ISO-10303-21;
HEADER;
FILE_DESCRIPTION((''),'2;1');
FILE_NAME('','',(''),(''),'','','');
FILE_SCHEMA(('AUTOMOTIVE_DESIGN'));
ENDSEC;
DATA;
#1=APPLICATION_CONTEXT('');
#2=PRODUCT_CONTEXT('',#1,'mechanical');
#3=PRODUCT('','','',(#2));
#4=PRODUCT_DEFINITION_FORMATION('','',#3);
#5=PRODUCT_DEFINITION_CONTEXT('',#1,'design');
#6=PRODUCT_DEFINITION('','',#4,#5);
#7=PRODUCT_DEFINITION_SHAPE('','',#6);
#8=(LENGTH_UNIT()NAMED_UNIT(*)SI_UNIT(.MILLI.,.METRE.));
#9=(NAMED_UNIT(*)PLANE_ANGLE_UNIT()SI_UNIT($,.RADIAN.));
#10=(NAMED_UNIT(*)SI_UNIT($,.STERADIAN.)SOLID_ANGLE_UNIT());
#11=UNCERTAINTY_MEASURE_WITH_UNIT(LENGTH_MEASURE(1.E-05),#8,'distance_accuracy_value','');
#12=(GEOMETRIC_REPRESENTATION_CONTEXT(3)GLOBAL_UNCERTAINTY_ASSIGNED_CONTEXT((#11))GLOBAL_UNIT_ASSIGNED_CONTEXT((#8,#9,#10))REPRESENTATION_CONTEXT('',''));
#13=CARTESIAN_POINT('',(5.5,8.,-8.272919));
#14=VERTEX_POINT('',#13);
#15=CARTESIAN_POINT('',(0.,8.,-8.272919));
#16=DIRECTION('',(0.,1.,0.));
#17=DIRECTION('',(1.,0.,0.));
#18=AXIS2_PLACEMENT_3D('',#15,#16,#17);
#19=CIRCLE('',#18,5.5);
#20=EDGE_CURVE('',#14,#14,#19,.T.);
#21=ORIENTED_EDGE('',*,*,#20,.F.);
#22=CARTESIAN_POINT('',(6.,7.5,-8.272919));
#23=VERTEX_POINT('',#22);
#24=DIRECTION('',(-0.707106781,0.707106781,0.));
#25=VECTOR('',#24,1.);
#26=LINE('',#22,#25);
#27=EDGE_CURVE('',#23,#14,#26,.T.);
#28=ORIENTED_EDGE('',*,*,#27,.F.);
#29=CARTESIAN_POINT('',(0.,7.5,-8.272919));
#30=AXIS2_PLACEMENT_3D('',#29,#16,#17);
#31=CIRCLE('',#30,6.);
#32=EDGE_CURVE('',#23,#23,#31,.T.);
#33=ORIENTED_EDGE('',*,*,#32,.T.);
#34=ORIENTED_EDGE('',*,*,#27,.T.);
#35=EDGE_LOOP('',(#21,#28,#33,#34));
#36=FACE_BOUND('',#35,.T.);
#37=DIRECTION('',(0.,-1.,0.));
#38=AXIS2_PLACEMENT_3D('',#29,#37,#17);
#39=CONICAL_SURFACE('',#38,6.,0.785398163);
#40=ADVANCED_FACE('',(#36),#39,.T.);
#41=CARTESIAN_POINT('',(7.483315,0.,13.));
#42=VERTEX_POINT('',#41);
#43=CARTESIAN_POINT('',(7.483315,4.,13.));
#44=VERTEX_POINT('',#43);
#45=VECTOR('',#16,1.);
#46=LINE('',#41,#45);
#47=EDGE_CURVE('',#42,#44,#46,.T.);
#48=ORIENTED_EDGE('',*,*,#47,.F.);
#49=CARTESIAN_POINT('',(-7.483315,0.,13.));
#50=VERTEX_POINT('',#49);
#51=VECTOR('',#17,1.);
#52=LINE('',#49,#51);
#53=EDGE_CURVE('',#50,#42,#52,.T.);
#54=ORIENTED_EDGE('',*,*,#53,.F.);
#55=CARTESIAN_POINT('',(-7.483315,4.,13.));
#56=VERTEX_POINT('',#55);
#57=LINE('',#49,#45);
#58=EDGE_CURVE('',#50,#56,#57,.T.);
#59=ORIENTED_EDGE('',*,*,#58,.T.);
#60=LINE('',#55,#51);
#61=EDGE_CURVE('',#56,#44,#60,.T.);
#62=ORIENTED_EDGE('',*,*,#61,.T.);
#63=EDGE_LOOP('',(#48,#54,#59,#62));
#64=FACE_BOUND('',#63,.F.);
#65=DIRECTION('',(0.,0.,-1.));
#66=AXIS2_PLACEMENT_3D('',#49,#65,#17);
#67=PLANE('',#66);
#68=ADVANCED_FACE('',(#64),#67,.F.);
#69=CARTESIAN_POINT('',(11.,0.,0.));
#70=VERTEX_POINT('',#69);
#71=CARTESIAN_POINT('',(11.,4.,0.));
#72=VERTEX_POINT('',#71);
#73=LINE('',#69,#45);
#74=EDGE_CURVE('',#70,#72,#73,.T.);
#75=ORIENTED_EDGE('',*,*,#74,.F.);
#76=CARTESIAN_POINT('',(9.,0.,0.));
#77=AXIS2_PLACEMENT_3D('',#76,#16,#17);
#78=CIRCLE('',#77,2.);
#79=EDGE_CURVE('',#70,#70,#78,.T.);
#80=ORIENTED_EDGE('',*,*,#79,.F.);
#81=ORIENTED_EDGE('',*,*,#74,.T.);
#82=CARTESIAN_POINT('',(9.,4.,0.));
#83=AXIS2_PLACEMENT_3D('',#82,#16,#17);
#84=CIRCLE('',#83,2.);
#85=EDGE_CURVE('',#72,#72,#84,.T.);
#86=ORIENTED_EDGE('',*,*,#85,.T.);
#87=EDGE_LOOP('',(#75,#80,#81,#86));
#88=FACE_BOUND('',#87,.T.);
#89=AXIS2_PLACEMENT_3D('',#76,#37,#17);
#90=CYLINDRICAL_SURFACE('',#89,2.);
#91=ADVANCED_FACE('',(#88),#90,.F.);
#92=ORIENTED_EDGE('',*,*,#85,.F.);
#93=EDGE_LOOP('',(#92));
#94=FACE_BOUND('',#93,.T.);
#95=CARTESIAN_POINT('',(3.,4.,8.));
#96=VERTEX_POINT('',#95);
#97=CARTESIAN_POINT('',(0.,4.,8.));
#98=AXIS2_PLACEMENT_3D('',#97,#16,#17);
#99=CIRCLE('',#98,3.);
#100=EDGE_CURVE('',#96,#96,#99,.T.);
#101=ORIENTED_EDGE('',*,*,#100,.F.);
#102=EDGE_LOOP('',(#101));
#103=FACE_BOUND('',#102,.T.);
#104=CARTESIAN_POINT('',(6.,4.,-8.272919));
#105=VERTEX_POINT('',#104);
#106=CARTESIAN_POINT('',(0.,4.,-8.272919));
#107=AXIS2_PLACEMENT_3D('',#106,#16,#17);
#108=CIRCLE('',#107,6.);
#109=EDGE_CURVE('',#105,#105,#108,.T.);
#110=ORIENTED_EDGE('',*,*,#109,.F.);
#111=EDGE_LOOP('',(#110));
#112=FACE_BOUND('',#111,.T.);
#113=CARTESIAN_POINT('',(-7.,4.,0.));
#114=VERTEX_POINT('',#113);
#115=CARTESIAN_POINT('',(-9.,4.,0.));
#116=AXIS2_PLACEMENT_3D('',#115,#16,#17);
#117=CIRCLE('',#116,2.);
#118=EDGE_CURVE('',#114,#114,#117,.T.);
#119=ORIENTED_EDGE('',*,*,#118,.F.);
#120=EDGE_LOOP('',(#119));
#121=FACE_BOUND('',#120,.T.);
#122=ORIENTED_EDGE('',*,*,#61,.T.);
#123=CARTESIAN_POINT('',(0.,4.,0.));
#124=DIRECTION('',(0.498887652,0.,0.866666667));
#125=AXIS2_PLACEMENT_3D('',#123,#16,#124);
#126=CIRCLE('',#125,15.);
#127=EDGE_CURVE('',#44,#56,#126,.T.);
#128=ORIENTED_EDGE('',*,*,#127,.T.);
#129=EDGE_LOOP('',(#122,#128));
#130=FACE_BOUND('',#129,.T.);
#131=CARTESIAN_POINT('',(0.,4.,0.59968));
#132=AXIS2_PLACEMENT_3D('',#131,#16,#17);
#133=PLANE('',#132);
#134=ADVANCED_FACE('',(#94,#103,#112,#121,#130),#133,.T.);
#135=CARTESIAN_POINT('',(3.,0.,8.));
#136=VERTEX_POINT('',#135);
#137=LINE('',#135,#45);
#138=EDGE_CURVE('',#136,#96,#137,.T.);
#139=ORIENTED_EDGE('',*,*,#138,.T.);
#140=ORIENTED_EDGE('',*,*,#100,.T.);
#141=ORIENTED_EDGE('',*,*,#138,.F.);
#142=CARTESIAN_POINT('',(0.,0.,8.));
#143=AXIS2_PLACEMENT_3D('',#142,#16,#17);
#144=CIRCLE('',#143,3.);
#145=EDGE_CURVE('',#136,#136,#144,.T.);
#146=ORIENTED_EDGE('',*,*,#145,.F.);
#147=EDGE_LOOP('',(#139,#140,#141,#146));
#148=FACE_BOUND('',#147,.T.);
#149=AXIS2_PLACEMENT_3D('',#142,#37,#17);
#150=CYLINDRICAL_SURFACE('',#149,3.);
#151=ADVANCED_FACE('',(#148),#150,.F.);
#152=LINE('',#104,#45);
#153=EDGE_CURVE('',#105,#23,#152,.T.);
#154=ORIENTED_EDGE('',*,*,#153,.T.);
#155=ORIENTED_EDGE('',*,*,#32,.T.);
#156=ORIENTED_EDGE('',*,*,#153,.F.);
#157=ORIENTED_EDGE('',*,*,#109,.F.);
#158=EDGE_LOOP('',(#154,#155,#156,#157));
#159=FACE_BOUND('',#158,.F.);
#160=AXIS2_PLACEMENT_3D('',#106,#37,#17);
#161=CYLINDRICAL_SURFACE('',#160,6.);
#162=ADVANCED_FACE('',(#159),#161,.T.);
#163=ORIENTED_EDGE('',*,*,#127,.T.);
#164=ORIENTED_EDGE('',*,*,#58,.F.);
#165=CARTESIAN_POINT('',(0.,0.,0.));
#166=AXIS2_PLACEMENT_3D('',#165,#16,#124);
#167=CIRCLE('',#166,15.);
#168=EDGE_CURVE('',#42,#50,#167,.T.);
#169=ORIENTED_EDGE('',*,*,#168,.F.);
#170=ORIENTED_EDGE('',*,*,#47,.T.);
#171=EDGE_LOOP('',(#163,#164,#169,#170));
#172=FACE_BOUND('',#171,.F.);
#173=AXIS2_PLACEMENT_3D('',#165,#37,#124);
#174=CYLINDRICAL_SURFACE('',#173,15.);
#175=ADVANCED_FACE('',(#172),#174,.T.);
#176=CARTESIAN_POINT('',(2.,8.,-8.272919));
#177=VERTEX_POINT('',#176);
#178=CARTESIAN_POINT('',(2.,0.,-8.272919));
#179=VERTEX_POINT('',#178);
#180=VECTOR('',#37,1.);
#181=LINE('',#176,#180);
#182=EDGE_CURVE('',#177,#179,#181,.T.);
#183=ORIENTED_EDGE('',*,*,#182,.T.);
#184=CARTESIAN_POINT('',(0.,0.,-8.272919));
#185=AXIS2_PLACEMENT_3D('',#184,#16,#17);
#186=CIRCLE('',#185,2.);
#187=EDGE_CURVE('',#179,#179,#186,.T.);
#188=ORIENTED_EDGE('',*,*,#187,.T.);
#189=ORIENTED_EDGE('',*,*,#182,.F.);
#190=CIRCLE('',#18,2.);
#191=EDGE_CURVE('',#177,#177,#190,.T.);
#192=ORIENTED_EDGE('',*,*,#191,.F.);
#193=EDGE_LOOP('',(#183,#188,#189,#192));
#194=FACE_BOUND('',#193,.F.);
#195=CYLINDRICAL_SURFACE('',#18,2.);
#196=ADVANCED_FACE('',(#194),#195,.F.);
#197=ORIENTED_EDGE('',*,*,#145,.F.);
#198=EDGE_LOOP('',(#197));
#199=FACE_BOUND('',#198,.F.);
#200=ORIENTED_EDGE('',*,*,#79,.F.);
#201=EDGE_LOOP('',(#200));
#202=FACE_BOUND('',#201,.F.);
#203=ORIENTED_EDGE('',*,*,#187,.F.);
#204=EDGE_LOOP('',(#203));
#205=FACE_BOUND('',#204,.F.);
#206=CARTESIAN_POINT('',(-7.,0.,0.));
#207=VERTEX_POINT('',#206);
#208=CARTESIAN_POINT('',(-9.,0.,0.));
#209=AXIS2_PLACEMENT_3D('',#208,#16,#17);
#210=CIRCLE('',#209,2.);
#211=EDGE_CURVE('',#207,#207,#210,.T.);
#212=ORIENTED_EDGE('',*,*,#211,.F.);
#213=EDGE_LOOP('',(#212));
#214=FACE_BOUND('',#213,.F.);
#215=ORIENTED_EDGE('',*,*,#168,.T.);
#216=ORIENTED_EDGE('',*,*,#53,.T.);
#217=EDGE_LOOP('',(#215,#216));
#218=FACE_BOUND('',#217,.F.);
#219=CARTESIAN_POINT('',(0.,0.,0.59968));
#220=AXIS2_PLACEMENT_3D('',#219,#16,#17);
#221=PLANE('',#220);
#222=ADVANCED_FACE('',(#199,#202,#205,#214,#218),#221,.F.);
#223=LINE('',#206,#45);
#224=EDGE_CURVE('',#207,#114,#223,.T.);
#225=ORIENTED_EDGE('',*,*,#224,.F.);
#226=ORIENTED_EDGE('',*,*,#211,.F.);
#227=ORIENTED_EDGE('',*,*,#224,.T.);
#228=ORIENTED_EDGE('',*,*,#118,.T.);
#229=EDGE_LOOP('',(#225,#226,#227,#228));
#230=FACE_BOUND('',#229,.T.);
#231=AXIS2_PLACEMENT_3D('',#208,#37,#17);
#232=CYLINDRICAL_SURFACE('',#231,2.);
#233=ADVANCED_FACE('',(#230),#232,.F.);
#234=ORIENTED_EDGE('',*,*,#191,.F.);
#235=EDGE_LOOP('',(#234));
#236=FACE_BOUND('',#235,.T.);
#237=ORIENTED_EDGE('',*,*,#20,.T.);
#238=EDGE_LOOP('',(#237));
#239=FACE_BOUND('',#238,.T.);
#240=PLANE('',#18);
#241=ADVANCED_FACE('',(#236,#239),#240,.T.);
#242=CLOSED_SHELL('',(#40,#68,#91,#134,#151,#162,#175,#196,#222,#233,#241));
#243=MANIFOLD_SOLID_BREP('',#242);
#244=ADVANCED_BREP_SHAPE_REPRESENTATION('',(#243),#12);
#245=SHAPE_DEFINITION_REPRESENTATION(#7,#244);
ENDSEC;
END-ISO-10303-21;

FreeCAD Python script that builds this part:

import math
import FreeCAD as App
import Part
import Sketcher
from FreeCAD import Vector


def edges_at(feature, points):
    """Names of the edges that pass closest to the given points."""
    edges = feature.Shape.Edges
    near = lambda p: min(range(len(edges)), key=lambda i: edges[i].distToShape(Part.Vertex(*p))[0])
    return sorted({f"Edge{near(p) + 1}" for p in points})

doc = App.newDocument("Part")
body = doc.addObject("PartDesign::Body", "Body")

sketch1 = body.newObject("Sketcher::SketchObject", "Sketch")
sketch1.AttachmentSupport = (doc.getObject("XZ_Plane"), [""])
sketch1.MapMode = "FlatFace"
sketch1.addGeometry(Part.LineSegment(Vector(-7.5, 13, 0), Vector(7.5, 13, 0)), False)
sketch1.addGeometry(Part.ArcOfCircle(Part.Circle(Vector(0, 0, 0), Vector(0, 0, 1), 15), math.radians(120), math.radians(420)), False)
sketch1.addGeometry(Part.Circle(Vector(0, 8, 0), Vector(0, 0, 1), 3), False)
sketch1.addGeometry(Part.Circle(Vector(-9, 0, 0), Vector(0, 0, 1), 2), False)
sketch1.addGeometry(Part.Circle(Vector(9, 0, 0), Vector(0, 0, 1), 2), False)
sketch1.addConstraint(Sketcher.Constraint("Coincident", 0, 1, 1, 1))
sketch1.addConstraint(Sketcher.Constraint("Coincident", 1, 2, 0, 2))
sketch1.addConstraint(Sketcher.Constraint("Horizontal", 0))
sketch1.addConstraint(Sketcher.Constraint("Coincident", 1, 3, -1, 1))
sketch1.addConstraint(Sketcher.Constraint("Equal", 3, 4))
sketch1.addConstraint(Sketcher.Constraint("Symmetric", 3, 3, 4, 3, -1, 1))
sketch1.addConstraint(Sketcher.Constraint("PointOnObject", 2, 3, -2))
sketch1.addConstraint(Sketcher.Constraint("PointOnObject", 3, 3, -1))
sketch1.addConstraint(Sketcher.Constraint("Diameter", 2, 6.0))
sketch1.addConstraint(Sketcher.Constraint("Diameter", 3, 4.0))
sketch1.addConstraint(Sketcher.Constraint("Radius", 1, 15.0))
sketch1.addConstraint(Sketcher.Constraint("DistanceY", -1, 1, 2, 3, 8.0))
sketch1.addConstraint(Sketcher.Constraint("DistanceX", 3, 3, -1, 1, 9.0))
sketch1.addConstraint(Sketcher.Constraint("DistanceY", -1, 1, 0, 1, 13.0))
pad1 = body.newObject("PartDesign::Pad", "Pad")
pad1.Profile = sketch1
pad1.Length = 4
pad1.Reversed = True

sketch2 = body.newObject("Sketcher::SketchObject", "Sketch001")
sketch2.AttachmentSupport = (doc.getObject("XZ_Plane"), [""])
sketch2.MapMode = "FlatFace"
sketch2.AttachmentOffset = App.Placement(Vector(0, 0, -4), App.Rotation())
sketch2.addGeometry(Part.Circle(Vector(0, -8, 0), Vector(0, 0, 1), 6), False)
sketch2.addConstraint(Sketcher.Constraint("PointOnObject", 0, 3, -2))
sketch2.addConstraint(Sketcher.Constraint("Diameter", 0, 12.0))
sketch2.addConstraint(Sketcher.Constraint("DistanceY", 0, 3, -1, 1, 8.272919))
pad2 = body.newObject("PartDesign::Pad", "Pad001")
pad2.Profile = sketch2
pad2.Length = 4
pad2.Reversed = True

sketch3 = body.newObject("Sketcher::SketchObject", "Sketch002")
sketch3.AttachmentSupport = (doc.getObject("XZ_Plane"), [""])
sketch3.MapMode = "FlatFace"
sketch3.AttachmentOffset = App.Placement(Vector(0, 0, -8), App.Rotation())
sketch3.addGeometry(Part.Circle(Vector(0, -8.3, 0), Vector(0, 0, 1), 2), False)
sketch3.addConstraint(Sketcher.Constraint("PointOnObject", 0, 3, -2))
sketch3.addConstraint(Sketcher.Constraint("Diameter", 0, 4.0))
sketch3.addConstraint(Sketcher.Constraint("DistanceY", 0, 3, -1, 1, 8.272919))
pocket1 = body.newObject("PartDesign::Pocket", "Pocket")
pocket1.Profile = sketch3
pocket1.Length = 15
pocket1.Reversed = True
doc.recompute()

chamfer = body.newObject("PartDesign::Chamfer", "Chamfer")
chamfer.Base = (pocket1, edges_at(pocket1, [(-6, 8, -8.273)]))
chamfer.Size = 0.5

doc.recompute()
